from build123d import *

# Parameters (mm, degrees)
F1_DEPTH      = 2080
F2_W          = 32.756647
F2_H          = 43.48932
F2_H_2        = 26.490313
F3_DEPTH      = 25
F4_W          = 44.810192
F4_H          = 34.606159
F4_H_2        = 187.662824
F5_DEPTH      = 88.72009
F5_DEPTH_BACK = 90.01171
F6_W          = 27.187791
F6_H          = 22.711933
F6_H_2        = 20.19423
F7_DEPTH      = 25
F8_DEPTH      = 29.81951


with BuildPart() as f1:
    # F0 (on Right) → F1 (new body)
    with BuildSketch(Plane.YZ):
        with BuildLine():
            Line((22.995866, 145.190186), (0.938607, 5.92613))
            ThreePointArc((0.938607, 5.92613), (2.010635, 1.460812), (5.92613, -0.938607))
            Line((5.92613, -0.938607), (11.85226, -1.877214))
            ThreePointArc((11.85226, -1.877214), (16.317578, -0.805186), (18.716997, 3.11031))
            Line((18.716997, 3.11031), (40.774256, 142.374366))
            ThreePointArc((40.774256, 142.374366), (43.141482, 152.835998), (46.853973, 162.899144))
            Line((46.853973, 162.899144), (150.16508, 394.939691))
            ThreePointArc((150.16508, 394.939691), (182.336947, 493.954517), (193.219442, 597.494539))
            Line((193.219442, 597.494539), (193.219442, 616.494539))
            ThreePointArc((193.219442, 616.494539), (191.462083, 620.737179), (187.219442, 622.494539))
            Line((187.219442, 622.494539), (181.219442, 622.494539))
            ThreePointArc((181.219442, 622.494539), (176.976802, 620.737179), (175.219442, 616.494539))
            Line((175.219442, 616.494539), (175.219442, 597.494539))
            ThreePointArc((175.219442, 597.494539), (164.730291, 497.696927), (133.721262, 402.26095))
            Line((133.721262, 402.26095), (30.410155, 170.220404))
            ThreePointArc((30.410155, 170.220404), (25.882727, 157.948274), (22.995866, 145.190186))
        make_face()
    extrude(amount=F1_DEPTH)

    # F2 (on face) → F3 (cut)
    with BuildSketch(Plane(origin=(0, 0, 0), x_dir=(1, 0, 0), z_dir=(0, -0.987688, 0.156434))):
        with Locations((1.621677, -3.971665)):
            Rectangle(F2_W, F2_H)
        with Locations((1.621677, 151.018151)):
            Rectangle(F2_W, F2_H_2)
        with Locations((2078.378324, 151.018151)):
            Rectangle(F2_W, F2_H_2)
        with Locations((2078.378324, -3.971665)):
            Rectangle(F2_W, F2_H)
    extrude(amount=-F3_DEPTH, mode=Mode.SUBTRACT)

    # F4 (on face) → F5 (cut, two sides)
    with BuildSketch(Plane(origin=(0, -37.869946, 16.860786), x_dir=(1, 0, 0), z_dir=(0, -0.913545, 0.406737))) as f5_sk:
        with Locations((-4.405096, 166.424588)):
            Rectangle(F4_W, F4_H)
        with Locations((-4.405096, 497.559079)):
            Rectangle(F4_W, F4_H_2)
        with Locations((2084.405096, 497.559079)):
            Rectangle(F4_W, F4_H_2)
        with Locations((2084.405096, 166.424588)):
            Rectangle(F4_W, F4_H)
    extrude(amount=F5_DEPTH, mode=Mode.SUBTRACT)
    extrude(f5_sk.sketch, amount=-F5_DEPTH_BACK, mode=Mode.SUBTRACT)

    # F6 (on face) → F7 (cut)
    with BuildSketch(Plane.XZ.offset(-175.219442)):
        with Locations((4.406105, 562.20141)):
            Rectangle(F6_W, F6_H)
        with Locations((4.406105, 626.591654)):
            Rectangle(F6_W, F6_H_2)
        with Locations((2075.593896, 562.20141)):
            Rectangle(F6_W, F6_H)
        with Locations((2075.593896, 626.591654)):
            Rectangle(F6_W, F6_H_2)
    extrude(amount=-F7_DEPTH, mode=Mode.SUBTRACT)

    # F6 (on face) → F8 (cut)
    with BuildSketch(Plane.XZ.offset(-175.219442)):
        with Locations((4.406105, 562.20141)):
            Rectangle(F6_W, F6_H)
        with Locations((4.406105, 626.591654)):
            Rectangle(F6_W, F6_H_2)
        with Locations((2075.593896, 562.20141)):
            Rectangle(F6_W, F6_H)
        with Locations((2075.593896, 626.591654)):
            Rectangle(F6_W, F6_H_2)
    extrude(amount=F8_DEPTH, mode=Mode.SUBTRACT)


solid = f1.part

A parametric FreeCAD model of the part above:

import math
import FreeCAD as App
import Part
import Sketcher

V = App.Vector
Q = App.Units.Quantity

doc = App.newDocument("Part")
body = doc.addObject("PartDesign::Body", "Body")

# Sketch on YZ plane
sketch1 = body.newObject("Sketcher::SketchObject", "Sketch")
sketch1.AttachmentSupport = (doc.getObject("YZ_Plane"), [""])
sketch1.MapMode = "FlatFace"
sketch1.addGeometry([
    Part.LineSegment(V(22.995866, 145.190186, 0), V(0.938607, 5.92613, 0)),  # 0
    Part.ArcOfCircle(Part.Circle(V(6.864738, 4.987524, 0), V(0, 0, 1), 6.000001), math.radians(171.000004), math.radians(260.999992)),  # 1
    Part.LineSegment(V(5.92613, -0.938607, 0), V(11.85226, -1.877214, 0)),  # 2
    Part.ArcOfCircle(Part.Circle(V(12.790867, 4.048916, 0), V(0, 0, 1), 6), math.radians(-98.999997), math.radians(-8.999996)),  # 3
    Part.LineSegment(V(18.716997, 3.11031, 0), V(40.774256, 142.374366, 0)),  # 4
    Part.ArcOfCircle(Part.Circle(V(121.764695, 129.546738, 0), V(0, 0, 1), 81.999995), math.radians(155.999998), math.radians(170.999998)),  # 5
    Part.LineSegment(V(46.853973, 162.899144, 0), V(150.16508, 394.939691, 0)),  # 6
    Part.ArcOfCircle(Part.Circle(V(-304.780565, 597.494541, 0), V(0, 0, 1), 498.000007), math.radians(-24), math.radians(0)),  # 7
    Part.LineSegment(V(193.219442, 597.494539, 0), V(193.219442, 616.494539, 0)),  # 8
    Part.ArcOfCircle(Part.Circle(V(187.219441, 616.494538, 0), V(0, 0, 1), 6.000001), math.radians(0.000006), math.radians(89.999994)),  # 9
    Part.LineSegment(V(187.219442, 622.494539, 0), V(181.219442, 622.494539, 0)),  # 10
    Part.ArcOfCircle(Part.Circle(V(181.219444, 616.494537, 0), V(0, 0, 1), 6.000002), math.radians(90.000022), math.radians(179.999978)),  # 11
    Part.LineSegment(V(175.219442, 616.494539, 0), V(175.219442, 597.494539, 0)),  # 12
    Part.ArcOfCircle(Part.Circle(V(-304.780536, 597.494533, 0), V(0, 0, 1), 479.999978), math.radians(-24), math.radians(0.000001)),  # 13
    Part.LineSegment(V(133.721262, 402.26095, 0), V(30.410155, 170.220404, 0)),  # 14
    Part.ArcOfCircle(Part.Circle(V(121.764713, 129.546734, 0), V(0, 0, 1), 100.000013), math.radians(156), math.radians(170.999998)),  # 15
], False)
sketch1.addConstraint([
    Sketcher.Constraint("Coincident", 0, 2, 1, 1),
    Sketcher.Constraint("Coincident", 1, 2, 2, 1),
    Sketcher.Constraint("Coincident", 2, 2, 3, 1),
    Sketcher.Constraint("Coincident", 3, 2, 4, 1),
    Sketcher.Constraint("Coincident", 4, 2, 5, 2),
    Sketcher.Constraint("Coincident", 5, 1, 6, 1),
    Sketcher.Constraint("Coincident", 6, 2, 7, 1),
    Sketcher.Constraint("Coincident", 7, 2, 8, 1),
    Sketcher.Constraint("Coincident", 8, 2, 9, 1),
    Sketcher.Constraint("Coincident", 9, 2, 10, 1),
    Sketcher.Constraint("Coincident", 10, 2, 11, 1),
    Sketcher.Constraint("Coincident", 11, 2, 12, 1),
    Sketcher.Constraint("Coincident", 12, 2, 13, 2),
    Sketcher.Constraint("Coincident", 13, 1, 14, 1),
    Sketcher.Constraint("Coincident", 14, 2, 15, 1),
    Sketcher.Constraint("Coincident", 15, 2, 0, 1),
    Sketcher.Constraint("Vertical", 8),
    Sketcher.Constraint("Horizontal", 10),
    Sketcher.Constraint("Vertical", 12),
    Sketcher.Constraint("Radius", 1, Q("6.000001 mm")),
    Sketcher.Constraint("Radius", 3, Q("6 mm")),
    Sketcher.Constraint("Radius", 9, Q("6.000001 mm")),
    Sketcher.Constraint("DistanceX", 10, 2, 10, 1, Q("6 mm")),
    Sketcher.Constraint("DistanceY", 8, 1, 8, 2, Q("19 mm")),
    Sketcher.Constraint("DistanceY", 12, 2, 12, 1, Q("19 mm")),
    Sketcher.Constraint("Distance", 0, Q("141 mm")),
    Sketcher.Constraint("Distance", 2, Q("6 mm")),
    Sketcher.Constraint("Distance", 4, Q("141 mm")),
    Sketcher.Constraint("Distance", 6, Q("254.000001 mm")),
    Sketcher.Constraint("Distance", 14, Q("254 mm")),
    Sketcher.Constraint("DistanceX", 9, 2, 8, 2, Q("6 mm")),
    Sketcher.Constraint("DistanceY", 8, 2, 9, 2, Q("6 mm")),
    Sketcher.Constraint("DistanceX", 11, 2, 10, 2, Q("6 mm")),
    Sketcher.Constraint("DistanceY", 11, 2, 10, 2, Q("6 mm")),
    Sketcher.Constraint("Radius", 5, Q("81.999995 mm")),
    Sketcher.Constraint("Radius", 7, Q("498.000007 mm")),
    Sketcher.Constraint("Radius", 11, Q("6.000002 mm")),
    Sketcher.Constraint("Radius", 13, Q("479.999978 mm")),
    Sketcher.Constraint("Radius", 15, Q("100.000013 mm")),
    Sketcher.Constraint("DistanceY", 5, 3, 9, 3, Q("486.9478 mm")),
    Sketcher.Constraint("DistanceX", 14, 2, 4, 2, Q("10.364101 mm")),
    Sketcher.Constraint("DistanceY", -1, 1, 5, 3, Q("129.546738 mm")),
    Sketcher.Constraint("DistanceY", -1, 1, 7, 3, Q("597.494541 mm")),
    Sketcher.Constraint("DistanceX", -1, 1, 9, 3, Q("187.219441 mm")),
    Sketcher.Constraint("DistanceY", -1, 1, 0, 2, Q("5.92613 mm")),
    Sketcher.Constraint("DistanceX", -1, 1, 1, 2, Q("5.92613 mm")),
    Sketcher.Constraint("DistanceX", -1, 1, 2, 2, Q("11.85226 mm")),
    Sketcher.Constraint("DistanceY", -1, 1, 3, 2, Q("3.11031 mm")),
    Sketcher.Constraint("DistanceX", -1, 1, 6, 2, Q("150.16508 mm")),
    Sketcher.Constraint("DistanceX", 1, 3, 3, 3, Q("5.926129 mm")),
    Sketcher.Constraint("DistanceY", 3, 3, 5, 3, Q("125.497822 mm")),
    Sketcher.Constraint("DistanceX", 7, 3, 5, 3, Q("426.54526 mm")),
    Sketcher.Constraint("DistanceX", 7, 3, 3, 3, Q("317.571432 mm")),
    Sketcher.Constraint("DistanceY", 1, 3, 13, 3, Q("592.50701 mm")),
    Sketcher.Constraint("DistanceY", 1, 3, 15, 3, Q("124.55921 mm")),
    Sketcher.Constraint("DistanceX", 15, 3, 11, 3, Q("59.454732 mm")),
])
pad1 = body.newObject("PartDesign::Pad", "Pad")
pad1.Profile = sketch1
pad1.Length = 2080

# Sketch on an angled plane
sketch2 = body.newObject("Sketcher::SketchObject", "Sketch001")
sketch2.Placement = App.Placement(V(0, 0, 0), App.Rotation(V(1, 0, 0), V(0, 0.156434064, 0.987688404), V(0, -0.987688404, 0.156434064), "ZXY"))
sketch2.addGeometry([
    Part.LineSegment(V(-14.756647, 17.772995, 0), V(-14.756647, -25.716325, 0)),  # 0
    Part.LineSegment(V(-14.756647, -25.716325, 0), V(18, -25.716325, 0)),  # 1
    Part.LineSegment(V(18, -25.716325, 0), V(18, 17.772995, 0)),  # 2
    Part.LineSegment(V(18, 17.772995, 0), V(-14.756647, 17.772995, 0)),  # 3
    Part.LineSegment(V(-14.756647, 164.263307, 0), V(-14.756647, 137.772994, 0)),  # 4
    Part.LineSegment(V(-14.756647, 137.772994, 0), V(18, 137.772994, 0)),  # 5
    Part.LineSegment(V(18, 137.772994, 0), V(18, 164.263307, 0)),  # 6
    Part.LineSegment(V(18, 164.263307, 0), V(-14.756647, 164.263307, 0)),  # 7
    Part.LineSegment(V(2062.000001, 164.263307, 0), V(2062.000001, 137.772994, 0)),  # 8
    Part.LineSegment(V(2062.000001, 137.772994, 0), V(2094.756647, 137.772994, 0)),  # 9
    Part.LineSegment(V(2094.756647, 137.772994, 0), V(2094.756647, 164.263307, 0)),  # 10
    Part.LineSegment(V(2094.756647, 164.263307, 0), V(2062.000001, 164.263307, 0)),  # 11
    Part.LineSegment(V(2062.000001, 17.772995, 0), V(2062.000001, -25.716325, 0)),  # 12
    Part.LineSegment(V(2062.000001, -25.716325, 0), V(2094.756647, -25.716325, 0)),  # 13
    Part.LineSegment(V(2094.756647, -25.716325, 0), V(2094.756647, 17.772995, 0)),  # 14
    Part.LineSegment(V(2094.756647, 17.772995, 0), V(2062.000001, 17.772995, 0)),  # 15
], False)
sketch2.addConstraint([
    Sketcher.Constraint("Coincident", 0, 2, 1, 1),
    Sketcher.Constraint("Coincident", 1, 2, 2, 1),
    Sketcher.Constraint("Coincident", 2, 2, 3, 1),
    Sketcher.Constraint("Coincident", 3, 2, 0, 1),
    Sketcher.Constraint("Coincident", 4, 2, 5, 1),
    Sketcher.Constraint("Coincident", 5, 2, 6, 1),
    Sketcher.Constraint("Coincident", 6, 2, 7, 1),
    Sketcher.Constraint("Coincident", 7, 2, 4, 1),
    Sketcher.Constraint("Coincident", 8, 2, 9, 1),
    Sketcher.Constraint("Coincident", 9, 2, 10, 1),
    Sketcher.Constraint("Coincident", 10, 2, 11, 1),
    Sketcher.Constraint("Coincident", 11, 2, 8, 1),
    Sketcher.Constraint("Coincident", 12, 2, 13, 1),
    Sketcher.Constraint("Coincident", 13, 2, 14, 1),
    Sketcher.Constraint("Coincident", 14, 2, 15, 1),
    Sketcher.Constraint("Coincident", 15, 2, 12, 1),
    Sketcher.Constraint("Vertical", 0),
    Sketcher.Constraint("Horizontal", 1),
    Sketcher.Constraint("Vertical", 2),
    Sketcher.Constraint("Horizontal", 3),
    Sketcher.Constraint("Vertical", 4),
    Sketcher.Constraint("Horizontal", 5),
    Sketcher.Constraint("Vertical", 6),
    Sketcher.Constraint("Horizontal", 7),
    Sketcher.Constraint("Vertical", 8),
    Sketcher.Constraint("Horizontal", 9),
    Sketcher.Constraint("Vertical", 10),
    Sketcher.Constraint("Horizontal", 11),
    Sketcher.Constraint("Vertical", 12),
    Sketcher.Constraint("Horizontal", 13),
    Sketcher.Constraint("Vertical", 14),
    Sketcher.Constraint("Horizontal", 15),
    Sketcher.Constraint("Horizontal", 5, 2, 8, 2),
    Sketcher.Constraint("Horizontal", 7, 2, 10, 2),
    Sketcher.Constraint("Horizontal", 1, 2, 12, 2),
    Sketcher.Constraint("Horizontal", 3, 2, 14, 2),
    Sketcher.Constraint("Vertical", 3, 2, 4, 2),
    Sketcher.Constraint("Vertical", 2, 2, 5, 2),
    Sketcher.Constraint("Vertical", 11, 2, 12, 2),
    Sketcher.Constraint("Vertical", 10, 2, 13, 2),
    Sketcher.Constraint("Equal", 7, 9),
    Sketcher.Constraint("DistanceX", -1, 1, 1, 2, Q("18 mm")),
    Sketcher.Constraint("DistanceX", -1, 1, 8, 2, Q("2062.000001 mm")),
    Sketcher.Constraint("DistanceY", 3, 2, 4, 2, Q("119.999999 mm")),
    Sketcher.Constraint("DistanceY", 0, 2, 0, 1, Q("43.48932 mm")),
    Sketcher.Constraint("DistanceX", 1, 1, 1, 2, Q("32.756647 mm")),
    Sketcher.Constraint("DistanceY", 4, 2, 4, 1, Q("26.490313 mm")),
    Sketcher.Constraint("DistanceY", 0, 2, -1, 1, Q("25.716325 mm")),
])
pocket1 = body.newObject("PartDesign::Pocket", "Pocket")
pocket1.Profile = sketch2
pocket1.Length = 25

# Sketch on an angled plane
sketch3 = body.newObject("Sketcher::SketchObject", "Sketch002")
sketch3.Placement = App.Placement(V(0, -37.869946, 16.860786), App.Rotation(V(1, 0, 0), V(0, 0.406737111, 0.913545249), V(0, -0.913545249, 0.406737111), "ZXY"))
sketch3.addGeometry([
    Part.LineSegment(V(-26.810192, 183.727667, 0), V(-26.810192, 149.121508, 0)),  # 0
    Part.LineSegment(V(-26.810192, 149.121508, 0), V(18, 149.121508, 0)),  # 1
    Part.LineSegment(V(18, 149.121508, 0), V(18, 183.727667, 0)),  # 2
    Part.LineSegment(V(18, 183.727667, 0), V(-26.810192, 183.727667, 0)),  # 3
    Part.LineSegment(V(-26.810192, 591.390491, 0), V(-26.810192, 403.727667, 0)),  # 4
    Part.LineSegment(V(-26.810192, 403.727667, 0), V(18, 403.727667, 0)),  # 5
    Part.LineSegment(V(18, 403.727667, 0), V(18, 591.390491, 0)),  # 6
    Part.LineSegment(V(18, 591.390491, 0), V(-26.810192, 591.390491, 0)),  # 7
    Part.LineSegment(V(2062, 591.390491, 0), V(2062, 403.727667, 0)),  # 8
    Part.LineSegment(V(2062, 403.727667, 0), V(2106.810192, 403.727667, 0)),  # 9
    Part.LineSegment(V(2106.810192, 403.727667, 0), V(2106.810192, 591.390491, 0)),  # 10
    Part.LineSegment(V(2106.810192, 591.390491, 0), V(2062, 591.390491, 0)),  # 11
    Part.LineSegment(V(2062, 183.727667, 0), V(2062, 149.121508, 0)),  # 12
    Part.LineSegment(V(2062, 149.121508, 0), V(2106.810192, 149.121508, 0)),  # 13
    Part.LineSegment(V(2106.810192, 149.121508, 0), V(2106.810192, 183.727667, 0)),  # 14
    Part.LineSegment(V(2106.810192, 183.727667, 0), V(2062, 183.727667, 0)),  # 15
], False)
sketch3.addConstraint([
    Sketcher.Constraint("Coincident", 0, 2, 1, 1),
    Sketcher.Constraint("Coincident", 1, 2, 2, 1),
    Sketcher.Constraint("Coincident", 2, 2, 3, 1),
    Sketcher.Constraint("Coincident", 3, 2, 0, 1),
    Sketcher.Constraint("Coincident", 4, 2, 5, 1),
    Sketcher.Constraint("Coincident", 5, 2, 6, 1),
    Sketcher.Constraint("Coincident", 6, 2, 7, 1),
    Sketcher.Constraint("Coincident", 7, 2, 4, 1),
    Sketcher.Constraint("Coincident", 8, 2, 9, 1),
    Sketcher.Constraint("Coincident", 9, 2, 10, 1),
    Sketcher.Constraint("Coincident", 10, 2, 11, 1),
    Sketcher.Constraint("Coincident", 11, 2, 8, 1),
    Sketcher.Constraint("Coincident", 12, 2, 13, 1),
    Sketcher.Constraint("Coincident", 13, 2, 14, 1),
    Sketcher.Constraint("Coincident", 14, 2, 15, 1),
    Sketcher.Constraint("Coincident", 15, 2, 12, 1),
    Sketcher.Constraint("Vertical", 0),
    Sketcher.Constraint("Horizontal", 1),
    Sketcher.Constraint("Vertical", 2),
    Sketcher.Constraint("Horizontal", 3),
    Sketcher.Constraint("Vertical", 4),
    Sketcher.Constraint("Horizontal", 5),
    Sketcher.Constraint("Vertical", 6),
    Sketcher.Constraint("Horizontal", 7),
    Sketcher.Constraint("Vertical", 8),
    Sketcher.Constraint("Horizontal", 9),
    Sketcher.Constraint("Vertical", 10),
    Sketcher.Constraint("Horizontal", 11),
    Sketcher.Constraint("Vertical", 12),
    Sketcher.Constraint("Horizontal", 13),
    Sketcher.Constraint("Vertical", 14),
    Sketcher.Constraint("Horizontal", 15),
    Sketcher.Constraint("Horizontal", 5, 2, 8, 2),
    Sketcher.Constraint("Horizontal", 7, 2, 10, 2),
    Sketcher.Constraint("Horizontal", 1, 2, 12, 2),
    Sketcher.Constraint("Horizontal", 3, 2, 14, 2),
    Sketcher.Constraint("Vertical", 3, 2, 4, 2),
    Sketcher.Constraint("Vertical", 2, 2, 5, 2),
    Sketcher.Constraint("Vertical", 11, 2, 12, 2),
    Sketcher.Constraint("Vertical", 10, 2, 13, 2),
    Sketcher.Constraint("Equal", 7, 9),
    Sketcher.Constraint("DistanceX", -1, 1, 1, 2, Q("18 mm")),
    Sketcher.Constraint("DistanceX", -1, 1, 8, 2, Q("2062 mm")),
    Sketcher.Constraint("DistanceY", 3, 2, 4, 2, Q("219.999999 mm")),
    Sketcher.Constraint("DistanceX", 9, 1, 9, 2, Q("44.810192 mm")),
    Sketcher.Constraint("DistanceY", 0, 2, 0, 1, Q("34.606159 mm")),
    Sketcher.Constraint("DistanceY", 4, 2, 4, 1, Q("187.662824 mm")),
    Sketcher.Constraint("DistanceY", -1, 1, 0, 2, Q("149.121508 mm")),
])
pocket2 = body.newObject("PartDesign::Pocket", "Pocket001")
pocket2.Profile = sketch3
pocket2.Type = "ThroughAll"
pocket2.Midplane = True

# Sketch on XZ plane
sketch4 = body.newObject("Sketcher::SketchObject", "Sketch003")
sketch4.AttachmentSupport = (doc.getObject("XZ_Plane"), [""])
sketch4.MapMode = "FlatFace"
sketch4.AttachmentOffset = App.Placement(V(0, 0, -175.219442), App.Rotation())
sketch4.addGeometry([
    Part.LineSegment(V(-9.187791, 573.557377, 0), V(-9.187791, 550.845443, 0)),  # 0
    Part.LineSegment(V(-9.187791, 550.845443, 0), V(18, 550.845443, 0)),  # 1
    Part.LineSegment(V(18, 550.845443, 0), V(18, 573.557377, 0)),  # 2
    Part.LineSegment(V(18, 573.557377, 0), V(-9.187791, 573.557377, 0)),  # 3
    Part.LineSegment(V(-9.187791, 636.688769, 0), V(-9.187791, 616.494539, 0)),  # 4
    Part.LineSegment(V(-9.187791, 616.494539, 0), V(18, 616.494539, 0)),  # 5
    Part.LineSegment(V(18, 616.494539, 0), V(18, 636.688769, 0)),  # 6
    Part.LineSegment(V(18, 636.688769, 0), V(-9.187791, 636.688769, 0)),  # 7
    Part.LineSegment(V(2062.000001, 573.557377, 0), V(2062.000001, 550.845443, 0)),  # 8
    Part.LineSegment(V(2062.000001, 550.845443, 0), V(2089.187792, 550.845443, 0)),  # 9
    Part.LineSegment(V(2089.187792, 550.845443, 0), V(2089.187792, 573.557377, 0)),  # 10
    Part.LineSegment(V(2089.187792, 573.557377, 0), V(2062.000001, 573.557377, 0)),  # 11
    Part.LineSegment(V(2062.000001, 636.688769, 0), V(2062.000001, 616.494539, 0)),  # 12
    Part.LineSegment(V(2062.000001, 616.494539, 0), V(2089.187792, 616.494539, 0)),  # 13
    Part.LineSegment(V(2089.187792, 616.494539, 0), V(2089.187792, 636.688769, 0)),  # 14
    Part.LineSegment(V(2089.187792, 636.688769, 0), V(2062.000001, 636.688769, 0)),  # 15
], False)
sketch4.addConstraint([
    Sketcher.Constraint("Coincident", 0, 2, 1, 1),
    Sketcher.Constraint("Coincident", 1, 2, 2, 1),
    Sketcher.Constraint("Coincident", 2, 2, 3, 1),
    Sketcher.Constraint("Coincident", 3, 2, 0, 1),
    Sketcher.Constraint("Coincident", 4, 2, 5, 1),
    Sketcher.Constraint("Coincident", 5, 2, 6, 1),
    Sketcher.Constraint("Coincident", 6, 2, 7, 1),
    Sketcher.Constraint("Coincident", 7, 2, 4, 1),
    Sketcher.Constraint("Coincident", 8, 2, 9, 1),
    Sketcher.Constraint("Coincident", 9, 2, 10, 1),
    Sketcher.Constraint("Coincident", 10, 2, 11, 1),
    Sketcher.Constraint("Coincident", 11, 2, 8, 1),
    Sketcher.Constraint("Coincident", 12, 2, 13, 1),
    Sketcher.Constraint("Coincident", 13, 2, 14, 1),
    Sketcher.Constraint("Coincident", 14, 2, 15, 1),
    Sketcher.Constraint("Coincident", 15, 2, 12, 1),
    Sketcher.Constraint("Vertical", 0),
    Sketcher.Constraint("Horizontal", 1),
    Sketcher.Constraint("Vertical", 2),
    Sketcher.Constraint("Horizontal", 3),
    Sketcher.Constraint("Vertical", 4),
    Sketcher.Constraint("Horizontal", 5),
    Sketcher.Constraint("Vertical", 6),
    Sketcher.Constraint("Horizontal", 7),
    Sketcher.Constraint("Vertical", 8),
    Sketcher.Constraint("Horizontal", 9),
    Sketcher.Constraint("Vertical", 10),
    Sketcher.Constraint("Horizontal", 11),
    Sketcher.Constraint("Vertical", 12),
    Sketcher.Constraint("Horizontal", 13),
    Sketcher.Constraint("Vertical", 14),
    Sketcher.Constraint("Horizontal", 15),
    Sketcher.Constraint("Horizontal", 1, 2, 8, 2),
    Sketcher.Constraint("Horizontal", 3, 2, 10, 2),
    Sketcher.Constraint("Horizontal", 5, 2, 12, 2),
    Sketcher.Constraint("Horizontal", 7, 2, 14, 2),
    Sketcher.Constraint("Vertical", 3, 2, 4, 2),
    Sketcher.Constraint("Vertical", 2, 2, 5, 2),
    Sketcher.Constraint("Vertical", 11, 2, 12, 2),
    Sketcher.Constraint("Vertical", 10, 2, 13, 2),
    Sketcher.Constraint("Equal", 7, 9),
    Sketcher.Constraint("DistanceX", -1, 1, 1, 2, Q("18 mm")),
    Sketcher.Constraint("DistanceX", -1, 1, 8, 2, Q("2062.000001 mm")),
    Sketcher.Constraint("DistanceX", 1, 1, 1, 2, Q("27.187791 mm")),
    Sketcher.Constraint("DistanceY", 4, 2, 4, 1, Q("20.19423 mm")),
    Sketcher.Constraint("DistanceY", 0, 2, 0, 1, Q("22.711933 mm")),
    Sketcher.Constraint("DistanceY", -1, 1, 4, 2, Q("616.494539 mm")),
    Sketcher.Constraint("DistanceY", -1, 1, 0, 2, Q("550.845443 mm")),
])
pocket3 = body.newObject("PartDesign::Pocket", "Pocket002")
pocket3.Profile = sketch4
pocket3.Length = 25

# Sketch on XZ plane
sketch5 = body.newObject("Sketcher::SketchObject", "Sketch004")
sketch5.AttachmentSupport = (doc.getObject("XZ_Plane"), [""])
sketch5.MapMode = "FlatFace"
sketch5.AttachmentOffset = App.Placement(V(0, 0, -175.219442), App.Rotation())
sketch5.addGeometry([
    Part.LineSegment(V(-9.187791, 573.557377, 0), V(-9.187791, 550.845443, 0)),  # 0
    Part.LineSegment(V(-9.187791, 550.845443, 0), V(18, 550.845443, 0)),  # 1
    Part.LineSegment(V(18, 550.845443, 0), V(18, 573.557377, 0)),  # 2
    Part.LineSegment(V(18, 573.557377, 0), V(-9.187791, 573.557377, 0)),  # 3
    Part.LineSegment(V(-9.187791, 636.688769, 0), V(-9.187791, 616.494539, 0)),  # 4
    Part.LineSegment(V(-9.187791, 616.494539, 0), V(18, 616.494539, 0)),  # 5
    Part.LineSegment(V(18, 616.494539, 0), V(18, 636.688769, 0)),  # 6
    Part.LineSegment(V(18, 636.688769, 0), V(-9.187791, 636.688769, 0)),  # 7
    Part.LineSegment(V(2062.000001, 573.557377, 0), V(2062.000001, 550.845443, 0)),  # 8
    Part.LineSegment(V(2062.000001, 550.845443, 0), V(2089.187792, 550.845443, 0)),  # 9
    Part.LineSegment(V(2089.187792, 550.845443, 0), V(2089.187792, 573.557377, 0)),  # 10
    Part.LineSegment(V(2089.187792, 573.557377, 0), V(2062.000001, 573.557377, 0)),  # 11
    Part.LineSegment(V(2062.000001, 636.688769, 0), V(2062.000001, 616.494539, 0)),  # 12
    Part.LineSegment(V(2062.000001, 616.494539, 0), V(2089.187792, 616.494539, 0)),  # 13
    Part.LineSegment(V(2089.187792, 616.494539, 0), V(2089.187792, 636.688769, 0)),  # 14
    Part.LineSegment(V(2089.187792, 636.688769, 0), V(2062.000001, 636.688769, 0)),  # 15
], False)
sketch5.addConstraint([
    Sketcher.Constraint("Coincident", 0, 2, 1, 1),
    Sketcher.Constraint("Coincident", 1, 2, 2, 1),
    Sketcher.Constraint("Coincident", 2, 2, 3, 1),
    Sketcher.Constraint("Coincident", 3, 2, 0, 1),
    Sketcher.Constraint("Coincident", 4, 2, 5, 1),
    Sketcher.Constraint("Coincident", 5, 2, 6, 1),
    Sketcher.Constraint("Coincident", 6, 2, 7, 1),
    Sketcher.Constraint("Coincident", 7, 2, 4, 1),
    Sketcher.Constraint("Coincident", 8, 2, 9, 1),
    Sketcher.Constraint("Coincident", 9, 2, 10, 1),
    Sketcher.Constraint("Coincident", 10, 2, 11, 1),
    Sketcher.Constraint("Coincident", 11, 2, 8, 1),
    Sketcher.Constraint("Coincident", 12, 2, 13, 1),
    Sketcher.Constraint("Coincident", 13, 2, 14, 1),
    Sketcher.Constraint("Coincident", 14, 2, 15, 1),
    Sketcher.Constraint("Coincident", 15, 2, 12, 1),
    Sketcher.Constraint("Vertical", 0),
    Sketcher.Constraint("Horizontal", 1),
    Sketcher.Constraint("Vertical", 2),
    Sketcher.Constraint("Horizontal", 3),
    Sketcher.Constraint("Vertical", 4),
    Sketcher.Constraint("Horizontal", 5),
    Sketcher.Constraint("Vertical", 6),
    Sketcher.Constraint("Horizontal", 7),
    Sketcher.Constraint("Vertical", 8),
    Sketcher.Constraint("Horizontal", 9),
    Sketcher.Constraint("Vertical", 10),
    Sketcher.Constraint("Horizontal", 11),
    Sketcher.Constraint("Vertical", 12),
    Sketcher.Constraint("Horizontal", 13),
    Sketcher.Constraint("Vertical", 14),
    Sketcher.Constraint("Horizontal", 15),
    Sketcher.Constraint("Horizontal", 1, 2, 8, 2),
    Sketcher.Constraint("Horizontal", 3, 2, 10, 2),
    Sketcher.Constraint("Horizontal", 5, 2, 12, 2),
    Sketcher.Constraint("Horizontal", 7, 2, 14, 2),
    Sketcher.Constraint("Vertical", 3, 2, 4, 2),
    Sketcher.Constraint("Vertical", 2, 2, 5, 2),
    Sketcher.Constraint("Vertical", 11, 2, 12, 2),
    Sketcher.Constraint("Vertical", 10, 2, 13, 2),
    Sketcher.Constraint("Equal", 7, 9),
    Sketcher.Constraint("DistanceX", -1, 1, 1, 2, Q("18 mm")),
    Sketcher.Constraint("DistanceX", -1, 1, 8, 2, Q("2062.000001 mm")),
    Sketcher.Constraint("DistanceX", 1, 1, 1, 2, Q("27.187791 mm")),
    Sketcher.Constraint("DistanceY", 4, 2, 4, 1, Q("20.19423 mm")),
    Sketcher.Constraint("DistanceY", 0, 2, 0, 1, Q("22.711933 mm")),
    Sketcher.Constraint("DistanceY", -1, 1, 4, 2, Q("616.494539 mm")),
    Sketcher.Constraint("DistanceY", -1, 1, 0, 2, Q("550.845443 mm")),
])
pocket4 = body.newObject("PartDesign::Pocket", "Pocket003")
pocket4.Profile = sketch5
pocket4.Length = 29.81951
pocket4.Reversed = True

doc.recompute()
